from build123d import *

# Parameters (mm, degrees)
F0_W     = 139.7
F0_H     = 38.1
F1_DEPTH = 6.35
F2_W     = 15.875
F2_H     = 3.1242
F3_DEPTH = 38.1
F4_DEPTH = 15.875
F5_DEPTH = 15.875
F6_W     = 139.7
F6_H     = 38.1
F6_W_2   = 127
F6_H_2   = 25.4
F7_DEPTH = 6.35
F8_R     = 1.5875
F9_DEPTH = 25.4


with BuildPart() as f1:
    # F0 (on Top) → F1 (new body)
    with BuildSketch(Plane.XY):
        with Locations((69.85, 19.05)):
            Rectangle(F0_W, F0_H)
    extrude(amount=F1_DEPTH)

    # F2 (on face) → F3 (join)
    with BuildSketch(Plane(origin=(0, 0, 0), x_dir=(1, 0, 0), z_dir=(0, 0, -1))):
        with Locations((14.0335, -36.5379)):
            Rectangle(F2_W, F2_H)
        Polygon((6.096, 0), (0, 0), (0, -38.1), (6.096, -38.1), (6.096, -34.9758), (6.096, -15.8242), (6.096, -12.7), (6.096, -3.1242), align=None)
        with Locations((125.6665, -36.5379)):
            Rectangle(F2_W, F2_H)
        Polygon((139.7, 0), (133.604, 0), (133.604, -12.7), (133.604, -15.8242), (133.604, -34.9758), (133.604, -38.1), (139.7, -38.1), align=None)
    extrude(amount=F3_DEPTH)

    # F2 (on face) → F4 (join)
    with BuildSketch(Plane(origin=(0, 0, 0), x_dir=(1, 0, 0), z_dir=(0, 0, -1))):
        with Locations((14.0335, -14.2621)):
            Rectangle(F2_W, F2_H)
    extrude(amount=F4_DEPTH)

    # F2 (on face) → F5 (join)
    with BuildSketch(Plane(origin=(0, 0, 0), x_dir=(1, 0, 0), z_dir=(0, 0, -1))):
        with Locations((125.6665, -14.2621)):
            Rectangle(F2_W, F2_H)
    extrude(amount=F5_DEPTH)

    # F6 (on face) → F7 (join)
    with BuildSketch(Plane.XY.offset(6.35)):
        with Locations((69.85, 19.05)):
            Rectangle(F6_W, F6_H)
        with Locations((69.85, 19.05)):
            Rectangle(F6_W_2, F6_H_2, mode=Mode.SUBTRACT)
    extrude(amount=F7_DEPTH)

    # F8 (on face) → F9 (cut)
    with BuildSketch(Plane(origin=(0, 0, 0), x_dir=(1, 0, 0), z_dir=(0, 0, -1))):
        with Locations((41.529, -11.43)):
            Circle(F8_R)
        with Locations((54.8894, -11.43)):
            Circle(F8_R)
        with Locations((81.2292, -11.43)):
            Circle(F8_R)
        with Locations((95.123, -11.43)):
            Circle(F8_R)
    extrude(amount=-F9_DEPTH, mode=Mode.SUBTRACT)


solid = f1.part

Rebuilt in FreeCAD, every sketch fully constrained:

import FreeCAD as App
import Part
import Sketcher

V = App.Vector
Q = App.Units.Quantity

doc = App.newDocument("Part")
params = doc.addObject("Spreadsheet::Sheet", "Params")
for row, (alias, value) in enumerate([
    ("sketch1_width", "5.5 in"),
    ("sketch1_height", "1.5 in"),
    ("pad1_length", "0.25 in"),
    ("sketch2_height", "1.5 in"),
    ("sketch2_width", "0.24 in"),
    ("sketch2_width2", "0.625 in"),
    ("sketch2_height2", "0.123 in"),
    ("pad2_length", "1.5 in"),
    ("sketch3_width", "0.625 in"),
    ("sketch3_height", "0.123 in"),
    ("pad3_length", "0.625 in"),
    ("sketch4_width", "0.625 in"),
    ("sketch4_height", "0.123 in"),
    ("pad4_length", "0.625 in"),
    ("sketch5_width", "5 in"),
    ("sketch5_height", "1 in"),
    ("sketch5_width2", "5.5 in"),
    ("sketch5_height2", "1.5 in"),
    ("pad5_length", "0.25 in"),
    ("sketch6_diameter", "0.125 in"),
    ("pocket1_length", "1 in"),
], start=1):
    params.set(f"A{row}", alias)
    params.set(f"B{row}", "=" + value)
    params.setAlias(f"B{row}", alias)

body = doc.addObject("PartDesign::Body", "Body")

# Sketch on XY plane
sketch1 = doc.addObject("Sketcher::SketchObject", "Sketch")
body.addObject(sketch1)
sketch1.AttachmentSupport = (doc.XY_Plane, [""])
sketch1.MapMode = "FlatFace"
sketch1.addGeometry([
    Part.LineSegment(V(0, 38, 0), V(0, 0, 0)),
    Part.LineSegment(V(0, 0, 0), V(140, 0, 0)),
    Part.LineSegment(V(140, 0, 0), V(140, 38, 0)),
    Part.LineSegment(V(140, 38, 0), V(0, 38, 0)),
], False)
sketch1.addConstraint([
    Sketcher.Constraint("Coincident", 0, 2, 1, 1),
    Sketcher.Constraint("Coincident", 1, 2, 2, 1),
    Sketcher.Constraint("Coincident", 2, 2, 3, 1),
    Sketcher.Constraint("Coincident", 3, 2, 0, 1),
    Sketcher.Constraint("Vertical", 0),
    Sketcher.Constraint("Horizontal", 1),
    Sketcher.Constraint("Vertical", 2),
    Sketcher.Constraint("Horizontal", 3),
    Sketcher.Constraint("Coincident", 0, 2, -1, 1),
    Sketcher.Constraint("DistanceX", 1, 1, 1, 2, Q("5.5 in")),
    Sketcher.Constraint("DistanceY", 0, 2, 0, 1, Q("1.5 in")),
])
sketch1.setExpression("Constraints[9]", "Params.sketch1_width")
sketch1.setExpression("Constraints[10]", "Params.sketch1_height")
pad1 = doc.addObject("PartDesign::Pad", "Pad")
body.addObject(pad1)
pad1.Profile = sketch1
pad1.setExpression("Length", "Params.pad1_length")

# Sketch on XY plane
sketch2 = doc.addObject("Sketcher::SketchObject", "Sketch001")
body.addObject(sketch2)
sketch2.AttachmentSupport = (doc.XY_Plane, [""])
sketch2.MapMode = "FlatFace"
sketch2.addGeometry([
    Part.LineSegment(V(22, 38.1, 0), V(22, 35, 0)),  # 0
    Part.LineSegment(V(22, 35, 0), V(6.1, 35, 0)),  # 1
    Part.LineSegment(V(6.1, 35, 0), V(6.1, 0, 0)),  # 2
    Part.LineSegment(V(6.1, 0, 0), V(0, 0, 0)),  # 3
    Part.LineSegment(V(0, 0, 0), V(0, 38.1, 0)),  # 4
    Part.LineSegment(V(0, 38.1, 0), V(22, 38.1, 0)),  # 5
    Part.LineSegment(V(117.7, 35, 0), V(117.7, 38.1, 0)),  # 6
    Part.LineSegment(V(117.7, 38.1, 0), V(139.7, 38.1, 0)),  # 7
    Part.LineSegment(V(139.7, 38.1, 0), V(139.7, 0, 0)),  # 8
    Part.LineSegment(V(139.7, 0, 0), V(133.6, 0, 0)),  # 9
    Part.LineSegment(V(133.6, 0, 0), V(133.6, 35, 0)),  # 10
    Part.LineSegment(V(133.6, 35, 0), V(117.7, 35, 0)),  # 11
], False)
sketch2.addConstraint([
    Sketcher.Constraint("Coincident", 0, 2, 1, 1),
    Sketcher.Constraint("Coincident", 1, 2, 2, 1),
    Sketcher.Constraint("Coincident", 2, 2, 3, 1),
    Sketcher.Constraint("Coincident", 3, 2, 4, 1),
    Sketcher.Constraint("Coincident", 4, 2, 5, 1),
    Sketcher.Constraint("Coincident", 5, 2, 0, 1),
    Sketcher.Constraint("Coincident", 6, 2, 7, 1),
    Sketcher.Constraint("Coincident", 7, 2, 8, 1),
    Sketcher.Constraint("Coincident", 8, 2, 9, 1),
    Sketcher.Constraint("Coincident", 9, 2, 10, 1),
    Sketcher.Constraint("Coincident", 10, 2, 11, 1),
    Sketcher.Constraint("Coincident", 11, 2, 6, 1),
    Sketcher.Constraint("Vertical", 0),
    Sketcher.Constraint("Horizontal", 1),
    Sketcher.Constraint("Vertical", 2),
    Sketcher.Constraint("Horizontal", 3),
    Sketcher.Constraint("Vertical", 4),
    Sketcher.Constraint("Horizontal", 5),
    Sketcher.Constraint("Vertical", 6),
    Sketcher.Constraint("Horizontal", 7),
    Sketcher.Constraint("Vertical", 8),
    Sketcher.Constraint("Horizontal", 9),
    Sketcher.Constraint("Vertical", 10),
    Sketcher.Constraint("Horizontal", 11),
    Sketcher.Constraint("Coincident", 3, 2, -1, 1),
    Sketcher.Constraint("PointOnObject", 8, 2, -1),
    Sketcher.Constraint("Horizontal", 5, 2, 6, 2),
    Sketcher.Constraint("Horizontal", 1, 2, 10, 2),
    Sketcher.Constraint("Equal", 5, 7),
    Sketcher.Constraint("Equal", 3, 9),
    Sketcher.Constraint("DistanceY", 4, 1, 4, 2, Q("1.5 in")),
    Sketcher.Constraint("DistanceX", 3, 2, 3, 1, Q("0.24 in")),
    Sketcher.Constraint("DistanceX", -1, 1, 7, 2, Q("5.5 in")),
    Sketcher.Constraint("DistanceX", 1, 2, 1, 1, Q("0.625 in")),
    Sketcher.Constraint("DistanceY", 0, 2, 0, 1, Q("0.123 in")),
])
sketch2.setExpression("Constraints[30]", "Params.sketch2_height")
sketch2.setExpression("Constraints[31]", "Params.sketch2_width")
sketch2.setExpression("Constraints[33]", "Params.sketch2_width2")
sketch2.setExpression("Constraints[34]", "Params.sketch2_height2")
pad2 = doc.addObject("PartDesign::Pad", "Pad001")
body.addObject(pad2)
pad2.Profile = sketch2
pad2.setExpression("Length", "Params.pad2_length")
pad2.Reversed = True

# Sketch on XY plane
sketch3 = doc.addObject("Sketcher::SketchObject", "Sketch002")
body.addObject(sketch3)
sketch3.AttachmentSupport = (doc.XY_Plane, [""])
sketch3.MapMode = "FlatFace"
sketch3.addGeometry([
    Part.LineSegment(V(6.1, 12.7, 0), V(6.1, 15.8, 0)),
    Part.LineSegment(V(6.1, 15.8, 0), V(22, 15.8, 0)),
    Part.LineSegment(V(22, 15.8, 0), V(22, 12.7, 0)),
    Part.LineSegment(V(22, 12.7, 0), V(6.1, 12.7, 0)),
], False)
sketch3.addConstraint([
    Sketcher.Constraint("Coincident", 0, 2, 1, 1),
    Sketcher.Constraint("Coincident", 1, 2, 2, 1),
    Sketcher.Constraint("Coincident", 2, 2, 3, 1),
    Sketcher.Constraint("Coincident", 3, 2, 0, 1),
    Sketcher.Constraint("Vertical", 0),
    Sketcher.Constraint("Horizontal", 1),
    Sketcher.Constraint("Vertical", 2),
    Sketcher.Constraint("Horizontal", 3),
    Sketcher.Constraint("DistanceY", -1, 1, 2, 2, Q("0.5 in")),
    Sketcher.Constraint("DistanceX", 1, 1, 1, 2, Q("0.625 in")),
    Sketcher.Constraint("DistanceY", 0, 1, 0, 2, Q("0.123 in")),
    Sketcher.Constraint("DistanceX", -1, 1, 0, 2, Q("0.24 in")),
])
sketch3.setExpression("Constraints[9]", "Params.sketch3_width")
sketch3.setExpression("Constraints[10]", "Params.sketch3_height")
pad3 = doc.addObject("PartDesign::Pad", "Pad002")
body.addObject(pad3)
pad3.Profile = sketch3
pad3.setExpression("Length", "Params.pad3_length")
pad3.Reversed = True

# Sketch on XY plane
sketch4 = doc.addObject("Sketcher::SketchObject", "Sketch003")
body.addObject(sketch4)
sketch4.AttachmentSupport = (doc.XY_Plane, [""])
sketch4.MapMode = "FlatFace"
sketch4.addGeometry([
    Part.LineSegment(V(117.7, 12.7, 0), V(117.7, 15.8, 0)),
    Part.LineSegment(V(117.7, 15.8, 0), V(133.6, 15.8, 0)),
    Part.LineSegment(V(133.6, 15.8, 0), V(133.6, 12.7, 0)),
    Part.LineSegment(V(133.6, 12.7, 0), V(117.7, 12.7, 0)),
], False)
sketch4.addConstraint([
    Sketcher.Constraint("Coincident", 0, 2, 1, 1),
    Sketcher.Constraint("Coincident", 1, 2, 2, 1),
    Sketcher.Constraint("Coincident", 2, 2, 3, 1),
    Sketcher.Constraint("Coincident", 3, 2, 0, 1),
    Sketcher.Constraint("Vertical", 0),
    Sketcher.Constraint("Horizontal", 1),
    Sketcher.Constraint("Vertical", 2),
    Sketcher.Constraint("Horizontal", 3),
    Sketcher.Constraint("DistanceY", -1, 1, 2, 2, Q("0.5 in")),
    Sketcher.Constraint("DistanceX", 1, 1, 1, 2, Q("0.625 in")),
    Sketcher.Constraint("DistanceY", 0, 1, 0, 2, Q("0.123 in")),
    Sketcher.Constraint("DistanceX", -1, 1, 1, 2, Q("5.26 in")),
])
sketch4.setExpression("Constraints[9]", "Params.sketch4_width")
sketch4.setExpression("Constraints[10]", "Params.sketch4_height")
pad4 = doc.addObject("PartDesign::Pad", "Pad003")
body.addObject(pad4)
pad4.Profile = sketch4
pad4.setExpression("Length", "Params.pad4_length")
pad4.Reversed = True

# Sketch on XY plane
sketch5 = doc.addObject("Sketcher::SketchObject", "Sketch004")
body.addObject(sketch5)
sketch5.AttachmentSupport = (doc.XY_Plane, [""])
sketch5.MapMode = "FlatFace"
sketch5.AttachmentOffset = App.Placement(V(0, 0, 0.25 * 25.4), App.Rotation())
sketch5.addGeometry([
    Part.LineSegment(V(0, 38, 0), V(0, 0, 0)),  # 0
    Part.LineSegment(V(0, 0, 0), V(140, 0, 0)),  # 1
    Part.LineSegment(V(140, 0, 0), V(140, 38, 0)),  # 2
    Part.LineSegment(V(140, 38, 0), V(0, 38, 0)),  # 3
    Part.LineSegment(V(133, 6, 0), V(6, 6, 0)),  # 4
    Part.LineSegment(V(6, 6, 0), V(6, 32, 0)),  # 5
    Part.LineSegment(V(6, 32, 0), V(133, 32, 0)),  # 6
    Part.LineSegment(V(133, 32, 0), V(133, 6, 0)),  # 7
], False)
sketch5.addConstraint([
    Sketcher.Constraint("Coincident", 0, 2, 1, 1),
    Sketcher.Constraint("Coincident", 1, 2, 2, 1),
    Sketcher.Constraint("Coincident", 2, 2, 3, 1),
    Sketcher.Constraint("Coincident", 3, 2, 0, 1),
    Sketcher.Constraint("Coincident", 4, 2, 5, 1),
    Sketcher.Constraint("Coincident", 5, 2, 6, 1),
    Sketcher.Constraint("Coincident", 6, 2, 7, 1),
    Sketcher.Constraint("Coincident", 7, 2, 4, 1),
    Sketcher.Constraint("Vertical", 0),
    Sketcher.Constraint("Horizontal", 1),
    Sketcher.Constraint("Vertical", 2),
    Sketcher.Constraint("Horizontal", 3),
    Sketcher.Constraint("Horizontal", 4),
    Sketcher.Constraint("Vertical", 5),
    Sketcher.Constraint("Horizontal", 6),
    Sketcher.Constraint("Vertical", 7),
    Sketcher.Constraint("Coincident", 0, 2, -1, 1),
    Sketcher.Constraint("DistanceX", 4, 2, 4, 1, Q("5 in")),
    Sketcher.Constraint("DistanceY", 5, 1, 5, 2, Q("1 in")),
    Sketcher.Constraint("DistanceX", 1, 1, 1, 2, Q("5.5 in")),
    Sketcher.Constraint("DistanceY", 0, 2, 0, 1, Q("1.5 in")),
    Sketcher.Constraint("DistanceX", -1, 1, 4, 2, Q("0.25 in")),
    Sketcher.Constraint("DistanceY", -1, 1, 4, 2, Q("0.25 in")),
])
sketch5.setExpression("Constraints[17]", "Params.sketch5_width")
sketch5.setExpression("Constraints[18]", "Params.sketch5_height")
sketch5.setExpression("Constraints[19]", "Params.sketch5_width2")
sketch5.setExpression("Constraints[20]", "Params.sketch5_height2")
pad5 = doc.addObject("PartDesign::Pad", "Pad004")
body.addObject(pad5)
pad5.Profile = sketch5
pad5.setExpression("Length", "Params.pad5_length")

# Sketch on XY plane
sketch6 = doc.addObject("Sketcher::SketchObject", "Sketch005")
body.addObject(sketch6)
sketch6.AttachmentSupport = (doc.XY_Plane, [""])
sketch6.MapMode = "FlatFace"
sketch6.addGeometry([
    Part.Circle(V(41.5, 11.4, 0), V(0, 0, 1), 1.6),
    Part.Circle(V(54.9, 11.4, 0), V(0, 0, 1), 1.6),
    Part.Circle(V(81.2, 11.4, 0), V(0, 0, 1), 1.6),
    Part.Circle(V(95.1, 11.4, 0), V(0, 0, 1), 1.6),
], False)
sketch6.addConstraint([
    Sketcher.Constraint("Equal", 0, 1),
    Sketcher.Constraint("Equal", 1, 2),
    Sketcher.Constraint("Equal", 2, 3),
    Sketcher.Constraint("Horizontal", 0, 3, 1, 3),
    Sketcher.Constraint("Horizontal", 1, 3, 2, 3),
    Sketcher.Constraint("Horizontal", 2, 3, 3, 3),
    Sketcher.Constraint("Diameter", 0, Q("0.125 in")),
    Sketcher.Constraint("DistanceY", -1, 1, 0, 3, Q("0.45 in")),
    Sketcher.Constraint("DistanceX", 0, 3, 3, 3, Q("2.11 in")),
    Sketcher.Constraint("DistanceX", -1, 1, 0, 3, Q("1.635 in")),
    Sketcher.Constraint("DistanceX", -1, 1, 1, 3, Q("2.161 in")),
    Sketcher.Constraint("DistanceX", -1, 1, 2, 3, Q("3.198 in")),
])
sketch6.setExpression("Constraints[6]", "Params.sketch6_diameter")
pocket1 = doc.addObject("PartDesign::Pocket", "Pocket")
body.addObject(pocket1)
pocket1.Profile = sketch6
pocket1.setExpression("Length", "Params.pocket1_length")
pocket1.Reversed = True

doc.recompute()
